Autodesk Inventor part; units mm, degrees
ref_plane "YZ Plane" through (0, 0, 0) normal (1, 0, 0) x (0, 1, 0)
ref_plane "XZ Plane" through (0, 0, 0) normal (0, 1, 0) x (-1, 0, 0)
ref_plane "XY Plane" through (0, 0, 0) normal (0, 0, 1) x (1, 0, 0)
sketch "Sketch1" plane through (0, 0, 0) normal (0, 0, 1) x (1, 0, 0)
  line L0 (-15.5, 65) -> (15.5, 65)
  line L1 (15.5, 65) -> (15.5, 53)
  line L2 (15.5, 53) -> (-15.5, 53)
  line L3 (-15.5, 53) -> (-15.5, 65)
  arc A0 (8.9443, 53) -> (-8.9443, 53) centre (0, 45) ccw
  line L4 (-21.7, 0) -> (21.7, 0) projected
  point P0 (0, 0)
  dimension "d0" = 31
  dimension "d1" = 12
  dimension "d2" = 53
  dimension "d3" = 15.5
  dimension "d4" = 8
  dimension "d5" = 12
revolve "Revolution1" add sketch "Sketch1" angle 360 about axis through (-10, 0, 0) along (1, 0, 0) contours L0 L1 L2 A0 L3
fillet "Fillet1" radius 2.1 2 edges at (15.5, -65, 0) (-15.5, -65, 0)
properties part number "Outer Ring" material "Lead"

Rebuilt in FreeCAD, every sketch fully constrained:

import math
import FreeCAD as App
import Part
import Sketcher
from FreeCAD import Vector
Q = App.Units.Quantity


def edges_at(feature, points):
    """Names of the edges that pass closest to the given points."""
    edges = feature.Shape.Edges
    near = lambda p: min(range(len(edges)), key=lambda i: edges[i].distToShape(Part.Vertex(*p))[0])
    return sorted({f"Edge{near(p) + 1}" for p in points})

doc = App.newDocument("Part")
body = doc.addObject("PartDesign::Body", "Body")

# Sketch on XY plane
sketch1 = body.newObject("Sketcher::SketchObject", "Sketch")
sketch1.AttachmentSupport = (doc.getObject("XY_Plane"), [""])
sketch1.MapMode = "FlatFace"
sketch1.addGeometry([
    Part.LineSegment(Vector(16, 65, 0), Vector(-16, 65, 0)),  # 0
    Part.LineSegment(Vector(-16, 65, 0), Vector(-16, 53, 0)),  # 1
    Part.LineSegment(Vector(-16, 53, 0), Vector(-9, 53, 0)),  # 2
    Part.ArcOfCircle(Part.Circle(Vector(0, 45, 0), Vector(0, 0, 1), 12), math.radians(42), math.radians(138)),  # 3
    Part.LineSegment(Vector(9, 53, 0), Vector(16, 53, 0)),  # 4
    Part.LineSegment(Vector(16, 53, 0), Vector(16, 65, 0)),  # 5
], False)
sketch1.addConstraint([
    Sketcher.Constraint("Coincident", 0, 2, 1, 1),
    Sketcher.Constraint("Coincident", 1, 2, 2, 1),
    Sketcher.Constraint("Coincident", 2, 2, 3, 2),
    Sketcher.Constraint("Coincident", 3, 1, 4, 1),
    Sketcher.Constraint("Coincident", 4, 2, 5, 1),
    Sketcher.Constraint("Coincident", 5, 2, 0, 1),
    Sketcher.Constraint("Horizontal", 0),
    Sketcher.Constraint("Vertical", 1),
    Sketcher.Constraint("Horizontal", 2),
    Sketcher.Constraint("Horizontal", 4),
    Sketcher.Constraint("Vertical", 5),
    Sketcher.Constraint("Symmetric", 2, 2, 3, 1, -2),
    Sketcher.Constraint("Equal", 2, 4),
    Sketcher.Constraint("Radius", 3, Q("12 mm")),
    Sketcher.Constraint("DistanceX", 0, 2, 0, 1, Q("31 mm")),
    Sketcher.Constraint("DistanceY", 1, 2, 1, 1, Q("12 mm")),
    Sketcher.Constraint("DistanceY", -1, 1, 1, 2, Q("53 mm")),
    Sketcher.Constraint("DistanceY", 3, 3, 1, 2, Q("8 mm")),
])
revolution = body.newObject("PartDesign::Revolution", "Revolution")
revolution.Profile = sketch1
revolution.ReferenceAxis = (sketch1, ["H_Axis"])
revolution.Angle = 360
doc.recompute()

fillet = body.newObject("PartDesign::Fillet", "Fillet")
fillet.Base = (revolution, edges_at(revolution, [(15.5, -65, 0), (-15.5, -65, 0)]))
fillet.Radius = 2.1

doc.recompute()
